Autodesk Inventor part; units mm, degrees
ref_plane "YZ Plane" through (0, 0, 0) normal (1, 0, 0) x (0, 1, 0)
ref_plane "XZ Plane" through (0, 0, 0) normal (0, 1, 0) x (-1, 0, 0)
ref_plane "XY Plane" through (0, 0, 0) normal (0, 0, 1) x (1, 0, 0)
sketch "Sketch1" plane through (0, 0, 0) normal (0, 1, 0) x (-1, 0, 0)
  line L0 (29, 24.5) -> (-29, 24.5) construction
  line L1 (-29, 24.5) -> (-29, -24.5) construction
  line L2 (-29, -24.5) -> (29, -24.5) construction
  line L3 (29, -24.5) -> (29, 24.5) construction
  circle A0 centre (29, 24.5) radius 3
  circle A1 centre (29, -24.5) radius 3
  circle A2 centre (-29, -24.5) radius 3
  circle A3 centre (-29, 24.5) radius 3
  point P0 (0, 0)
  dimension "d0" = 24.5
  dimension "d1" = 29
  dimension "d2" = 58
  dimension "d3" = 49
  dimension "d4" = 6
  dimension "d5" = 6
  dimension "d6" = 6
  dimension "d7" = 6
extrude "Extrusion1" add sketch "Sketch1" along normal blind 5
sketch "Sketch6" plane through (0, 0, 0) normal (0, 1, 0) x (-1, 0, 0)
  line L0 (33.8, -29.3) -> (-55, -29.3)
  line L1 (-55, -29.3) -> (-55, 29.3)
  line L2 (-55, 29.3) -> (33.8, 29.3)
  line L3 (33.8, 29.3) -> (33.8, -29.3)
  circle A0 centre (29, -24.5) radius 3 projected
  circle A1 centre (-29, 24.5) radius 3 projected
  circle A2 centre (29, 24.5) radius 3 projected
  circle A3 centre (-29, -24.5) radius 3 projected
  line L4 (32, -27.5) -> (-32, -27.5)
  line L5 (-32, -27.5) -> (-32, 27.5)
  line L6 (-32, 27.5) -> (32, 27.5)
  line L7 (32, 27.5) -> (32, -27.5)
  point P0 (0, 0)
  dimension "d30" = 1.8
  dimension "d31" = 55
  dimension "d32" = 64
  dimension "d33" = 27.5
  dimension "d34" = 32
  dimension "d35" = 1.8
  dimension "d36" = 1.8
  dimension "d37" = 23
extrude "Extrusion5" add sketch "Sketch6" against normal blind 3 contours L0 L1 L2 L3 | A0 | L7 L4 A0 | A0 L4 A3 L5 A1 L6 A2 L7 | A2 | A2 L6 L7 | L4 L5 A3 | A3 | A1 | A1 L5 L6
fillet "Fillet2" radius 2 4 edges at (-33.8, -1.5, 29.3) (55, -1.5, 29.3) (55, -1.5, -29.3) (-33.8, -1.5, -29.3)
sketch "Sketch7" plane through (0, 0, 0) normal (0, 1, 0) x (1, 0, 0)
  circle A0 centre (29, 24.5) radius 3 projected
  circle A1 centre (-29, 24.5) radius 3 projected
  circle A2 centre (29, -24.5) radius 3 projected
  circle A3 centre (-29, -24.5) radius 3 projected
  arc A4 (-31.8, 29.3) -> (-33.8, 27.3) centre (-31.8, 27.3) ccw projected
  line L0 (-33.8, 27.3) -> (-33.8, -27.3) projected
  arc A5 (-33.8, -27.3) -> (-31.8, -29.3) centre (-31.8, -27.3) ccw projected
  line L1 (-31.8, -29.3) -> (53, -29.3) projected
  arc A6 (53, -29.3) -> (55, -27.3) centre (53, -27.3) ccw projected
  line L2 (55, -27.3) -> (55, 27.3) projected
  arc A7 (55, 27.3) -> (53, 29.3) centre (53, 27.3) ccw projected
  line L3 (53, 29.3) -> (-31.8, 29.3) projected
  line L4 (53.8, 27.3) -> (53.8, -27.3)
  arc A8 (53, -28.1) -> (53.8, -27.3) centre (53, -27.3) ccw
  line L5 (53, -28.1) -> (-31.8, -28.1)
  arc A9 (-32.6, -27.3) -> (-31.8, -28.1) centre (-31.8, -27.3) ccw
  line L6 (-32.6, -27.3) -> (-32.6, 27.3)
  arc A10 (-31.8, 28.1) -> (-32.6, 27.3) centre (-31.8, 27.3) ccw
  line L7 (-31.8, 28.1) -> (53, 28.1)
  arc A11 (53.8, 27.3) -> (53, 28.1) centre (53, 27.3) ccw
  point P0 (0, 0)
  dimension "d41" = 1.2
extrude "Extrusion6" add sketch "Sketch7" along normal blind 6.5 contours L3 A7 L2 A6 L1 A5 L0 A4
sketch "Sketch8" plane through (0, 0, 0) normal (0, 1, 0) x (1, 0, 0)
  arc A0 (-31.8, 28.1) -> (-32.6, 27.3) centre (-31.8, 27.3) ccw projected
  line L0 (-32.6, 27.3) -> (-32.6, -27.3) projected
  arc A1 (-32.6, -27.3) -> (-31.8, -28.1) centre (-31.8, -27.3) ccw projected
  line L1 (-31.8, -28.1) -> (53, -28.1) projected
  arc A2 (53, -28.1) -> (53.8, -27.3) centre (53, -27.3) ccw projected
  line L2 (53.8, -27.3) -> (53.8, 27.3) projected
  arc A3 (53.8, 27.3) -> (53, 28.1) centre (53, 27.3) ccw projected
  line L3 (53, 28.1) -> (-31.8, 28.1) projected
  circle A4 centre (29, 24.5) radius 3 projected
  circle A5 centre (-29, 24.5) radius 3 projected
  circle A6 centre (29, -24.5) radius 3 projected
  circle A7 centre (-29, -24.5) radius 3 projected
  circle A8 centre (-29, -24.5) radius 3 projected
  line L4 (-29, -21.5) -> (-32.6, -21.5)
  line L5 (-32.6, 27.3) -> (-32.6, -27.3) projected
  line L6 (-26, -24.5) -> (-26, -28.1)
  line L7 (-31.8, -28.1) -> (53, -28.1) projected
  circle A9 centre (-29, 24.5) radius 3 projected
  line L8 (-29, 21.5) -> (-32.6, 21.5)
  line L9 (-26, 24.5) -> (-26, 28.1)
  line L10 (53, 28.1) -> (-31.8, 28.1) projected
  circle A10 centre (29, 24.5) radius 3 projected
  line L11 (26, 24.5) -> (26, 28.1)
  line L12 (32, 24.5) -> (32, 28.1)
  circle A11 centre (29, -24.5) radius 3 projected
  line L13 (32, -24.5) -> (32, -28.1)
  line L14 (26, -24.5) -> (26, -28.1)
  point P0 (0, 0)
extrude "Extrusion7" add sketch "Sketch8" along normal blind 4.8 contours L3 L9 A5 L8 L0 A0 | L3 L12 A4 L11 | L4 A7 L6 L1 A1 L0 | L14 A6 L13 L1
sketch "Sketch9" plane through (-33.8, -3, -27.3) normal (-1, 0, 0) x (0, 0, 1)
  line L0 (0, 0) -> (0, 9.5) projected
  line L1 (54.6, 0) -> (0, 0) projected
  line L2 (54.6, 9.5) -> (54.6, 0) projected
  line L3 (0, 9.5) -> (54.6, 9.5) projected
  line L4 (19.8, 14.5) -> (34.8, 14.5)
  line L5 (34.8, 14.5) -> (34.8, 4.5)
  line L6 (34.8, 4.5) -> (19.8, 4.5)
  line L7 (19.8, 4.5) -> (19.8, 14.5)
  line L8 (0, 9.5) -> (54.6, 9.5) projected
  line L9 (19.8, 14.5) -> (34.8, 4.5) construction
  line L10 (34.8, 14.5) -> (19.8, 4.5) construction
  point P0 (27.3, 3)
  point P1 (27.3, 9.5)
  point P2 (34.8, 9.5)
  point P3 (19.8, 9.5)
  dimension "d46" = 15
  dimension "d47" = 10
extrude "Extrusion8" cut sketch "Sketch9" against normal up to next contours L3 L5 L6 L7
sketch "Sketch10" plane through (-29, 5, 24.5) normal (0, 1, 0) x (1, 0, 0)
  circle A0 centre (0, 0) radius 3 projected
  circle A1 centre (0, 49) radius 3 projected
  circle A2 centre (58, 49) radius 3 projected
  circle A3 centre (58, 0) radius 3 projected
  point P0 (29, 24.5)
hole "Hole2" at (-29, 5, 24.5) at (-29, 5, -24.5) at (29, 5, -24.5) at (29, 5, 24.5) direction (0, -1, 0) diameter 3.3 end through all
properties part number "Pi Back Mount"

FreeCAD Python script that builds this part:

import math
import FreeCAD as App
import Part
import Sketcher


def edges_at(feature, points):
    """Names of the edges that pass closest to the given points."""
    edges = feature.Shape.Edges
    near = lambda p: min(range(len(edges)), key=lambda i: edges[i].distToShape(Part.Vertex(*p))[0])
    return sorted({f"Edge{near(p) + 1}" for p in points})

doc = App.newDocument("Part")
body = doc.addObject("PartDesign::Body", "Body")
body.AllowCompound = True

sketch1 = doc.addObject("Sketcher::SketchObject", "Sketch")
body.addObject(sketch1)
sketch1.AttachmentSupport = (doc.XZ_Plane, [""])
sketch1.MapMode = "FlatFace"
sketch1.addGeometry(Part.Circle(App.Vector(-29, 24.5, 0), App.Vector(0, 0, 1), 3), False)
sketch1.addGeometry(Part.Circle(App.Vector(-29, -24.5, 0), App.Vector(0, 0, 1), 3), False)
sketch1.addGeometry(Part.Circle(App.Vector(29, -24.5, 0), App.Vector(0, 0, 1), 3), False)
sketch1.addGeometry(Part.Circle(App.Vector(29, 24.5, 0), App.Vector(0, 0, 1), 3), False)
sketch1.addConstraint(Sketcher.Constraint("Equal", 0, 1))
sketch1.addConstraint(Sketcher.Constraint("Equal", 1, 2))
sketch1.addConstraint(Sketcher.Constraint("Equal", 2, 3))
sketch1.addConstraint(Sketcher.Constraint("Symmetric", 0, 3, 2, 3, -1, 1))
sketch1.addConstraint(Sketcher.Constraint("Symmetric", 1, 3, 3, 3, -1, 1))
sketch1.addConstraint(Sketcher.Constraint("Symmetric", 1, 3, 2, 3, -2))
sketch1.addConstraint(Sketcher.Constraint("Diameter", 0, 6.0))
sketch1.addConstraint(Sketcher.Constraint("DistanceX", 0, 3, -1, 1, 29.0))
sketch1.addConstraint(Sketcher.Constraint("DistanceY", 1, 3, 0, 3, 49.0))
pad1 = doc.addObject("PartDesign::Pad", "Pad")
body.addObject(pad1)
pad1.Profile = sketch1
pad1.Length = 5
pad1.Reversed = True

sketch2 = doc.addObject("Sketcher::SketchObject", "Sketch001")
body.addObject(sketch2)
sketch2.AttachmentSupport = (doc.XZ_Plane, [""])
sketch2.MapMode = "FlatFace"
sketch2.addGeometry(Part.LineSegment(App.Vector(55, -29, 0), App.Vector(-34, -29, 0)), False)
sketch2.addGeometry(Part.LineSegment(App.Vector(-34, -29, 0), App.Vector(-34, 29, 0)), False)
sketch2.addGeometry(Part.LineSegment(App.Vector(-34, 29, 0), App.Vector(55, 29, 0)), False)
sketch2.addGeometry(Part.LineSegment(App.Vector(55, 29, 0), App.Vector(55, -29, 0)), False)
sketch2.addConstraint(Sketcher.Constraint("Coincident", 0, 2, 1, 1))
sketch2.addConstraint(Sketcher.Constraint("Coincident", 1, 2, 2, 1))
sketch2.addConstraint(Sketcher.Constraint("Coincident", 2, 2, 3, 1))
sketch2.addConstraint(Sketcher.Constraint("Coincident", 3, 2, 0, 1))
sketch2.addConstraint(Sketcher.Constraint("Horizontal", 0))
sketch2.addConstraint(Sketcher.Constraint("Vertical", 1))
sketch2.addConstraint(Sketcher.Constraint("Horizontal", 2))
sketch2.addConstraint(Sketcher.Constraint("Vertical", 3))
sketch2.addConstraint(Sketcher.Constraint("DistanceX", -1, 1, 2, 2, 55.0))
sketch2.addConstraint(Sketcher.Constraint("DistanceX", 0, 2, 0, 1, 88.8))
sketch2.addConstraint(Sketcher.Constraint("DistanceY", 1, 1, 1, 2, 58.6))
sketch2.addConstraint(Sketcher.Constraint("DistanceY", 0, 2, -1, 1, 29.3))
pad2 = doc.addObject("PartDesign::Pad", "Pad001")
body.addObject(pad2)
pad2.Profile = sketch2
pad2.Length = 3
doc.recompute()

fillet = doc.addObject("PartDesign::Fillet", "Fillet")
body.addObject(fillet)
fillet.Base = (pad2, edges_at(pad2, [
    (-33.8, -1.5, 29.3),
    (55, -1.5, 29.3),
    (55, -1.5, -29.3),
    (-33.8, -1.5, -29.3),
]))
fillet.Radius = 2

sketch3 = doc.addObject("Sketcher::SketchObject", "Sketch002")
body.addObject(sketch3)
sketch3.AttachmentSupport = (doc.XZ_Plane, [""])
sketch3.MapMode = "FlatFace"
sketch3.addGeometry(Part.LineSegment(App.Vector(53, -29.3, 0), App.Vector(-31.8, -29.3, 0)), False)
sketch3.addGeometry(Part.ArcOfCircle(Part.Circle(App.Vector(-31.8, -27.3, 0), App.Vector(0, 0, 1), 2), math.radians(180), math.radians(270)), False)
sketch3.addGeometry(Part.LineSegment(App.Vector(-33.8, -27.3, 0), App.Vector(-33.8, 27.3, 0)), False)
sketch3.addGeometry(Part.ArcOfCircle(Part.Circle(App.Vector(-31.8, 27.3, 0), App.Vector(0, 0, 1), 2), math.radians(90), math.radians(180)), False)
sketch3.addGeometry(Part.LineSegment(App.Vector(-31.8, 29.3, 0), App.Vector(53, 29.3, 0)), False)
sketch3.addGeometry(Part.ArcOfCircle(Part.Circle(App.Vector(53, 27.3, 0), App.Vector(0, 0, 1), 2), math.radians(0), math.radians(90)), False)
sketch3.addGeometry(Part.LineSegment(App.Vector(55, 27.3, 0), App.Vector(55, -27.3, 0)), False)
sketch3.addGeometry(Part.ArcOfCircle(Part.Circle(App.Vector(53, -27.3, 0), App.Vector(0, 0, 1), 2), math.radians(-90), math.radians(0)), False)
sketch3.addGeometry(Part.ArcOfCircle(Part.Circle(App.Vector(53, -27.3, 0), App.Vector(0, 0, 1), 0.8), math.radians(-90), math.radians(0)), False)
sketch3.addGeometry(Part.LineSegment(App.Vector(53.8, -27.3, 0), App.Vector(53.8, 27.3, 0)), False)
sketch3.addGeometry(Part.ArcOfCircle(Part.Circle(App.Vector(53, 27.3, 0), App.Vector(0, 0, 1), 0.8), math.radians(0), math.radians(90)), False)
sketch3.addGeometry(Part.LineSegment(App.Vector(53, 28.1, 0), App.Vector(-31.8, 28.1, 0)), False)
sketch3.addGeometry(Part.ArcOfCircle(Part.Circle(App.Vector(-31.8, 27.3, 0), App.Vector(0, 0, 1), 0.8), math.radians(90), math.radians(180)), False)
sketch3.addGeometry(Part.LineSegment(App.Vector(-32.6, 27.3, 0), App.Vector(-32.6, -27.3, 0)), False)
sketch3.addGeometry(Part.ArcOfCircle(Part.Circle(App.Vector(-31.8, -27.3, 0), App.Vector(0, 0, 1), 0.8), math.radians(180), math.radians(270)), False)
sketch3.addGeometry(Part.LineSegment(App.Vector(-31.8, -28.1, 0), App.Vector(53, -28.1, 0)), False)
sketch3.addConstraint(Sketcher.Constraint("Tangent", 0, 2, 1, 2))
sketch3.addConstraint(Sketcher.Constraint("Tangent", 1, 1, 2, 1))
sketch3.addConstraint(Sketcher.Constraint("Tangent", 2, 2, 3, 2))
sketch3.addConstraint(Sketcher.Constraint("Tangent", 3, 1, 4, 1))
sketch3.addConstraint(Sketcher.Constraint("Tangent", 4, 2, 5, 2))
sketch3.addConstraint(Sketcher.Constraint("Tangent", 5, 1, 6, 1))
sketch3.addConstraint(Sketcher.Constraint("Tangent", 6, 2, 7, 2))
sketch3.addConstraint(Sketcher.Constraint("Tangent", 7, 1, 0, 1))
sketch3.addConstraint(Sketcher.Constraint("Tangent", 8, 2, 9, 1))
sketch3.addConstraint(Sketcher.Constraint("Tangent", 9, 2, 10, 1))
sketch3.addConstraint(Sketcher.Constraint("Tangent", 10, 2, 11, 1))
sketch3.addConstraint(Sketcher.Constraint("Tangent", 11, 2, 12, 1))
sketch3.addConstraint(Sketcher.Constraint("Tangent", 12, 2, 13, 1))
sketch3.addConstraint(Sketcher.Constraint("Tangent", 13, 2, 14, 1))
sketch3.addConstraint(Sketcher.Constraint("Tangent", 14, 2, 15, 1))
sketch3.addConstraint(Sketcher.Constraint("Tangent", 15, 2, 8, 1))
sketch3.addConstraint(Sketcher.Constraint("Horizontal", 0))
sketch3.addConstraint(Sketcher.Constraint("Vertical", 2))
sketch3.addConstraint(Sketcher.Constraint("Horizontal", 4))
sketch3.addConstraint(Sketcher.Constraint("Vertical", 6))
sketch3.addConstraint(Sketcher.Constraint("Vertical", 9))
sketch3.addConstraint(Sketcher.Constraint("Horizontal", 11))
sketch3.addConstraint(Sketcher.Constraint("Vertical", 13))
sketch3.addConstraint(Sketcher.Constraint("Horizontal", 15))
sketch3.addConstraint(Sketcher.Constraint("Coincident", 8, 3, 7, 3))
sketch3.addConstraint(Sketcher.Constraint("Coincident", 10, 3, 5, 3))
sketch3.addConstraint(Sketcher.Constraint("Coincident", 12, 3, 3, 3))
sketch3.addConstraint(Sketcher.Constraint("Equal", 1, 3))
sketch3.addConstraint(Sketcher.Constraint("Equal", 3, 5))
sketch3.addConstraint(Sketcher.Constraint("Equal", 5, 7))
sketch3.addConstraint(Sketcher.Constraint("Equal", 12, 14))
sketch3.addConstraint(Sketcher.Constraint("Radius", 1, 2.0))
sketch3.addConstraint(Sketcher.Constraint("Radius", 8, 0.8))
sketch3.addConstraint(Sketcher.Constraint("DistanceX", 0, 2, 0, 1, 84.8))
sketch3.addConstraint(Sketcher.Constraint("DistanceY", 2, 1, 2, 2, 54.6))
sketch3.addConstraint(Sketcher.Constraint("DistanceX", -1, 1, 5, 3, 53.0))
sketch3.addConstraint(Sketcher.Constraint("DistanceY", 1, 3, -1, 1, 27.3))
pad3 = doc.addObject("PartDesign::Pad", "Pad002")
body.addObject(pad3)
pad3.Profile = sketch3
pad3.Length = 6.5
pad3.Reversed = True

sketch4 = doc.addObject("Sketcher::SketchObject", "Sketch003")
body.addObject(sketch4)
sketch4.AttachmentSupport = (doc.XZ_Plane, [""])
sketch4.MapMode = "FlatFace"
sketch4.addGeometry(Part.LineSegment(App.Vector(-26, -28.1, 0), App.Vector(-31.8, -28.1, 0)), False)
sketch4.addGeometry(Part.ArcOfCircle(Part.Circle(App.Vector(-31.8, -27.3, 0), App.Vector(0, 0, 1), 0.8), math.radians(180), math.radians(270)), False)
sketch4.addGeometry(Part.LineSegment(App.Vector(-32.6, -27.3, 0), App.Vector(-32.6, -21.5, 0)), False)
sketch4.addGeometry(Part.LineSegment(App.Vector(-32.6, -21.5, 0), App.Vector(-29, -21.5, 0)), False)
sketch4.addGeometry(Part.ArcOfCircle(Part.Circle(App.Vector(-29, -24.5, 0), App.Vector(0, 0, 1), 3), math.radians(90), math.radians(360)), False)
sketch4.addGeometry(Part.LineSegment(App.Vector(-26, -24.5, 0), App.Vector(-26, -28.1, 0)), False)
sketch4.addGeometry(Part.LineSegment(App.Vector(32, -28.1, 0), App.Vector(26, -28.1, 0)), False)
sketch4.addGeometry(Part.LineSegment(App.Vector(26, -28.1, 0), App.Vector(26, -24.5, 0)), False)
sketch4.addGeometry(Part.ArcOfCircle(Part.Circle(App.Vector(29, -24.5, 0), App.Vector(0, 0, 1), 3), math.radians(180), math.radians(360)), False)
sketch4.addGeometry(Part.LineSegment(App.Vector(32, -24.5, 0), App.Vector(32, -28.1, 0)), False)
sketch4.addGeometry(Part.LineSegment(App.Vector(-29, 21.5, 0), App.Vector(-32.6, 21.5, 0)), False)
sketch4.addGeometry(Part.LineSegment(App.Vector(-32.6, 21.5, 0), App.Vector(-32.6, 27.3, 0)), False)
sketch4.addGeometry(Part.ArcOfCircle(Part.Circle(App.Vector(-31.8, 27.3, 0), App.Vector(0, 0, 1), 0.8), math.radians(90), math.radians(180)), False)
sketch4.addGeometry(Part.LineSegment(App.Vector(-31.8, 28.1, 0), App.Vector(-26, 28.1, 0)), False)
sketch4.addGeometry(Part.LineSegment(App.Vector(-26, 28.1, 0), App.Vector(-26, 24.5, 0)), False)
sketch4.addGeometry(Part.ArcOfCircle(Part.Circle(App.Vector(-29, 24.5, 0), App.Vector(0, 0, 1), 3), math.radians(0), math.radians(270)), False)
sketch4.addGeometry(Part.LineSegment(App.Vector(26, 24.5, 0), App.Vector(26, 28.1, 0)), False)
sketch4.addGeometry(Part.LineSegment(App.Vector(26, 28.1, 0), App.Vector(32, 28.1, 0)), False)
sketch4.addGeometry(Part.LineSegment(App.Vector(32, 28.1, 0), App.Vector(32, 24.5, 0)), False)
sketch4.addGeometry(Part.ArcOfCircle(Part.Circle(App.Vector(29, 24.5, 0), App.Vector(0, 0, 1), 3), math.radians(0), math.radians(180)), False)
sketch4.addConstraint(Sketcher.Constraint("Tangent", 0, 2, 1, 2))
sketch4.addConstraint(Sketcher.Constraint("Tangent", 1, 1, 2, 1))
sketch4.addConstraint(Sketcher.Constraint("Coincident", 2, 2, 3, 1))
sketch4.addConstraint(Sketcher.Constraint("Tangent", 3, 2, 4, 1))
sketch4.addConstraint(Sketcher.Constraint("Tangent", 4, 2, 5, 1))
sketch4.addConstraint(Sketcher.Constraint("Coincident", 5, 2, 0, 1))
sketch4.addConstraint(Sketcher.Constraint("Coincident", 6, 2, 7, 1))
sketch4.addConstraint(Sketcher.Constraint("Tangent", 7, 2, 8, 1))
sketch4.addConstraint(Sketcher.Constraint("Tangent", 8, 2, 9, 1))
sketch4.addConstraint(Sketcher.Constraint("Coincident", 9, 2, 6, 1))
sketch4.addConstraint(Sketcher.Constraint("Coincident", 10, 2, 11, 1))
sketch4.addConstraint(Sketcher.Constraint("Tangent", 11, 2, 12, 2))
sketch4.addConstraint(Sketcher.Constraint("Tangent", 12, 1, 13, 1))
sketch4.addConstraint(Sketcher.Constraint("Coincident", 13, 2, 14, 1))
sketch4.addConstraint(Sketcher.Constraint("Tangent", 14, 2, 15, 1))
sketch4.addConstraint(Sketcher.Constraint("Tangent", 15, 2, 10, 1))
sketch4.addConstraint(Sketcher.Constraint("Coincident", 16, 2, 17, 1))
sketch4.addConstraint(Sketcher.Constraint("Coincident", 17, 2, 18, 1))
sketch4.addConstraint(Sketcher.Constraint("Tangent", 18, 2, 19, 1))
sketch4.addConstraint(Sketcher.Constraint("Tangent", 19, 2, 16, 1))
sketch4.addConstraint(Sketcher.Constraint("Horizontal", 0))
sketch4.addConstraint(Sketcher.Constraint("Vertical", 2))
sketch4.addConstraint(Sketcher.Constraint("Horizontal", 3))
sketch4.addConstraint(Sketcher.Constraint("Vertical", 5))
sketch4.addConstraint(Sketcher.Constraint("Horizontal", 6))
sketch4.addConstraint(Sketcher.Constraint("Vertical", 7))
sketch4.addConstraint(Sketcher.Constraint("Vertical", 9))
sketch4.addConstraint(Sketcher.Constraint("Horizontal", 10))
sketch4.addConstraint(Sketcher.Constraint("Vertical", 11))
sketch4.addConstraint(Sketcher.Constraint("Horizontal", 13))
sketch4.addConstraint(Sketcher.Constraint("Vertical", 14))
sketch4.addConstraint(Sketcher.Constraint("Vertical", 16))
sketch4.addConstraint(Sketcher.Constraint("Horizontal", 17))
sketch4.addConstraint(Sketcher.Constraint("Vertical", 18))
sketch4.addConstraint(Sketcher.Constraint("Equal", 4, 8))
sketch4.addConstraint(Sketcher.Constraint("Equal", 1, 12))
sketch4.addConstraint(Sketcher.Constraint("Equal", 8, 15))
sketch4.addConstraint(Sketcher.Constraint("Equal", 15, 19))
sketch4.addConstraint(Sketcher.Constraint("Symmetric", 8, 3, 15, 3, -1, 1))
sketch4.addConstraint(Sketcher.Constraint("Symmetric", 4, 3, 19, 3, -1, 1))
sketch4.addConstraint(Sketcher.Constraint("Symmetric", 4, 3, 8, 3, -2))
sketch4.addConstraint(Sketcher.Constraint("Symmetric", 1, 3, 12, 3, -1))
sketch4.addConstraint(Sketcher.Constraint("Horizontal", 5, 2, 6, 2))
sketch4.addConstraint(Sketcher.Constraint("Horizontal", 13, 2, 16, 2))
sketch4.addConstraint(Sketcher.Constraint("Equal", 13, 2))
sketch4.addConstraint(Sketcher.Constraint("Radius", 4, 3.0))
sketch4.addConstraint(Sketcher.Constraint("Radius", 1, 0.8))
sketch4.addConstraint(Sketcher.Constraint("DistanceX", 0, 2, 0, 1, 5.8))
sketch4.addConstraint(Sketcher.Constraint("DistanceX", 4, 3, -1, 1, 29.0))
sketch4.addConstraint(Sketcher.Constraint("DistanceY", 4, 3, 15, 3, 49.0))
pad4 = doc.addObject("PartDesign::Pad", "Pad003")
body.addObject(pad4)
pad4.Profile = sketch4
pad4.Length = 4.8
pad4.Reversed = True

sketch5 = doc.addObject("Sketcher::SketchObject", "Sketch004")
body.addObject(sketch5)
sketch5.AttachmentSupport = (doc.YZ_Plane, [""])
sketch5.MapMode = "FlatFace"
sketch5.AttachmentOffset = App.Placement(App.Vector(0, 0, -33.8), App.Rotation())
sketch5.addGeometry(Part.LineSegment(App.Vector(6, 8, 0), App.Vector(6, -8, 0)), False)
sketch5.addGeometry(Part.LineSegment(App.Vector(6, -8, 0), App.Vector(2, -8, 0)), False)
sketch5.addGeometry(Part.LineSegment(App.Vector(2, -8, 0), App.Vector(2, 8, 0)), False)
sketch5.addGeometry(Part.LineSegment(App.Vector(2, 8, 0), App.Vector(6, 8, 0)), False)
sketch5.addConstraint(Sketcher.Constraint("Coincident", 0, 2, 1, 1))
sketch5.addConstraint(Sketcher.Constraint("Coincident", 1, 2, 2, 1))
sketch5.addConstraint(Sketcher.Constraint("Coincident", 2, 2, 3, 1))
sketch5.addConstraint(Sketcher.Constraint("Coincident", 3, 2, 0, 1))
sketch5.addConstraint(Sketcher.Constraint("Vertical", 0))
sketch5.addConstraint(Sketcher.Constraint("Horizontal", 1))
sketch5.addConstraint(Sketcher.Constraint("Vertical", 2))
sketch5.addConstraint(Sketcher.Constraint("Horizontal", 3))
sketch5.addConstraint(Sketcher.Constraint("DistanceY", 0, 2, 0, 1, 15.0))
sketch5.addConstraint(Sketcher.Constraint("DistanceX", 1, 2, 1, 1, 5.0))
sketch5.addConstraint(Sketcher.Constraint("DistanceX", -1, 1, 0, 2, 6.5))
sketch5.addConstraint(Sketcher.Constraint("DistanceY", 0, 2, -1, 1, 7.5))
pocket1 = doc.addObject("PartDesign::Pocket", "Pocket")
body.addObject(pocket1)
pocket1.Profile = sketch5
pocket1.Type = "UpToFirst"
pocket1.Reversed = True

sketch6 = doc.addObject("Sketcher::SketchObject", "Sketch005")
body.addObject(sketch6)
sketch6.AttachmentSupport = (doc.XZ_Plane, [""])
sketch6.MapMode = "FlatFace"
sketch6.AttachmentOffset = App.Placement(App.Vector(0, 0, -5), App.Rotation())
sketch6.addGeometry(Part.Circle(App.Vector(-29, 24.5, 0), App.Vector(0, 0, 1), 1.6), False)
sketch6.addGeometry(Part.Circle(App.Vector(-29, -24.5, 0), App.Vector(0, 0, 1), 1.6), False)
sketch6.addGeometry(Part.Circle(App.Vector(29, -24.5, 0), App.Vector(0, 0, 1), 1.6), False)
sketch6.addGeometry(Part.Circle(App.Vector(29, 24.5, 0), App.Vector(0, 0, 1), 1.6), False)
sketch6.addConstraint(Sketcher.Constraint("Equal", 0, 1))
sketch6.addConstraint(Sketcher.Constraint("Equal", 1, 2))
sketch6.addConstraint(Sketcher.Constraint("Equal", 2, 3))
sketch6.addConstraint(Sketcher.Constraint("Symmetric", 0, 3, 2, 3, -1, 1))
sketch6.addConstraint(Sketcher.Constraint("Symmetric", 1, 3, 3, 3, -1, 1))
sketch6.addConstraint(Sketcher.Constraint("Symmetric", 1, 3, 2, 3, -2))
sketch6.addConstraint(Sketcher.Constraint("Diameter", 0, 3.3))
sketch6.addConstraint(Sketcher.Constraint("DistanceX", 0, 3, -1, 1, 29.0))
sketch6.addConstraint(Sketcher.Constraint("DistanceY", 1, 3, 0, 3, 49.0))
doc.recompute()
hole = doc.addObject("PartDesign::Hole", "Hole")
body.addObject(hole)
hole.Profile = sketch6
hole.ThreadType = "None"
hole.Diameter = 3.3
hole.DepthType = "ThroughAll"
hole.Reversed = True

doc.recompute()
